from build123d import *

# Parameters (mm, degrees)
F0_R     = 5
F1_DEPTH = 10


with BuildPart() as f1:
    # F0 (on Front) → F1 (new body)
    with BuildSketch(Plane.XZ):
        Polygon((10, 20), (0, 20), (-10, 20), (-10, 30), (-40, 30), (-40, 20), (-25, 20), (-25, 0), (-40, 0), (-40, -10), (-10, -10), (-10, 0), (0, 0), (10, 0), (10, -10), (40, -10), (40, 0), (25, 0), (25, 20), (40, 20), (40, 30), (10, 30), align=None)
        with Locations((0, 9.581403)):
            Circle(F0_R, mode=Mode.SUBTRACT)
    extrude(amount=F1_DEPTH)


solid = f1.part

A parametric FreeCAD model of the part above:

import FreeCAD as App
import Part
import Sketcher

V = App.Vector

doc = App.newDocument("Part")
body = doc.addObject("PartDesign::Body", "Body")

# Sketch on XZ plane
sketch1 = doc.addObject("Sketcher::SketchObject", "Sketch")
body.addObject(sketch1)
sketch1.AttachmentSupport = (doc.XZ_Plane, [""])
sketch1.MapMode = "FlatFace"
sketch1.addGeometry([
    Part.LineSegment(V(10, 20, 0), V(-10, 20, 0)),  # 0
    Part.LineSegment(V(-10, 20, 0), V(-10, 30, 0)),  # 1
    Part.LineSegment(V(-10, 30, 0), V(-40, 30, 0)),  # 2
    Part.LineSegment(V(-40, 30, 0), V(-40, 20, 0)),  # 3
    Part.LineSegment(V(-40, 20, 0), V(-25, 20, 0)),  # 4
    Part.LineSegment(V(-25, 20, 0), V(-25, 0, 0)),  # 5
    Part.LineSegment(V(-25, 0, 0), V(-40, 0, 0)),  # 6
    Part.LineSegment(V(-40, 0, 0), V(-40, -10, 0)),  # 7
    Part.LineSegment(V(-40, -10, 0), V(-10, -10, 0)),  # 8
    Part.LineSegment(V(-10, -10, 0), V(-10, 0, 0)),  # 9
    Part.LineSegment(V(-10, 0, 0), V(10, 0, 0)),  # 10
    Part.LineSegment(V(10, 0, 0), V(10, -10, 0)),  # 11
    Part.LineSegment(V(10, -10, 0), V(40, -10, 0)),  # 12
    Part.LineSegment(V(40, -10, 0), V(40, 0, 0)),  # 13
    Part.LineSegment(V(40, 0, 0), V(25, 0, 0)),  # 14
    Part.LineSegment(V(25, 0, 0), V(25, 20, 0)),  # 15
    Part.LineSegment(V(25, 20, 0), V(40, 20, 0)),  # 16
    Part.LineSegment(V(40, 20, 0), V(40, 30, 0)),  # 17
    Part.LineSegment(V(40, 30, 0), V(10, 30, 0)),  # 18
    Part.LineSegment(V(10, 30, 0), V(10, 20, 0)),  # 19
    Part.Circle(V(0, 10, 0), V(0, 0, 1), 5),  # 20
], False)
sketch1.addConstraint([
    Sketcher.Constraint("Coincident", 0, 2, 1, 1),
    Sketcher.Constraint("Coincident", 1, 2, 2, 1),
    Sketcher.Constraint("Coincident", 2, 2, 3, 1),
    Sketcher.Constraint("Coincident", 3, 2, 4, 1),
    Sketcher.Constraint("Coincident", 4, 2, 5, 1),
    Sketcher.Constraint("Coincident", 5, 2, 6, 1),
    Sketcher.Constraint("Coincident", 6, 2, 7, 1),
    Sketcher.Constraint("Coincident", 7, 2, 8, 1),
    Sketcher.Constraint("Coincident", 8, 2, 9, 1),
    Sketcher.Constraint("Coincident", 9, 2, 10, 1),
    Sketcher.Constraint("Coincident", 10, 2, 11, 1),
    Sketcher.Constraint("Coincident", 11, 2, 12, 1),
    Sketcher.Constraint("Coincident", 12, 2, 13, 1),
    Sketcher.Constraint("Coincident", 13, 2, 14, 1),
    Sketcher.Constraint("Coincident", 14, 2, 15, 1),
    Sketcher.Constraint("Coincident", 15, 2, 16, 1),
    Sketcher.Constraint("Coincident", 16, 2, 17, 1),
    Sketcher.Constraint("Coincident", 17, 2, 18, 1),
    Sketcher.Constraint("Coincident", 18, 2, 19, 1),
    Sketcher.Constraint("Coincident", 19, 2, 0, 1),
    Sketcher.Constraint("Horizontal", 0),
    Sketcher.Constraint("Vertical", 1),
    Sketcher.Constraint("Horizontal", 2),
    Sketcher.Constraint("Vertical", 3),
    Sketcher.Constraint("Horizontal", 4),
    Sketcher.Constraint("Vertical", 5),
    Sketcher.Constraint("Horizontal", 6),
    Sketcher.Constraint("Vertical", 7),
    Sketcher.Constraint("Horizontal", 8),
    Sketcher.Constraint("Vertical", 9),
    Sketcher.Constraint("Horizontal", 10),
    Sketcher.Constraint("Vertical", 11),
    Sketcher.Constraint("Horizontal", 12),
    Sketcher.Constraint("Vertical", 13),
    Sketcher.Constraint("Horizontal", 14),
    Sketcher.Constraint("Vertical", 15),
    Sketcher.Constraint("Horizontal", 16),
    Sketcher.Constraint("Vertical", 17),
    Sketcher.Constraint("Horizontal", 18),
    Sketcher.Constraint("Vertical", 19),
    Sketcher.Constraint("Symmetric", 9, 2, 10, 2, -1, 1),
    Sketcher.Constraint("Symmetric", 6, 2, 13, 2, -1, 1),
    Sketcher.Constraint("Symmetric", 5, 2, 14, 2, -2),
    Sketcher.Constraint("Symmetric", 3, 2, 16, 2, -2),
    Sketcher.Constraint("Symmetric", 1, 2, 18, 2, -2),
    Sketcher.Constraint("PointOnObject", 20, 3, -2),
    Sketcher.Constraint("Horizontal", 0, 2, 3, 2),
    Sketcher.Constraint("Horizontal", 8, 2, 11, 2),
    Sketcher.Constraint("Vertical", 3, 2, 6, 2),
    Sketcher.Constraint("Vertical", 1, 2, 8, 2),
    Sketcher.Constraint("Equal", 10, 5),
    Sketcher.Constraint("Equal", 3, 7),
    Sketcher.Constraint("Diameter", 20, 10.0),
    Sketcher.Constraint("DistanceX", 0, 2, 0, 1, 20.0),
    Sketcher.Constraint("DistanceX", 2, 2, 2, 1, 30.0),
    Sketcher.Constraint("DistanceX", 4, 1, 4, 2, 15.0),
    Sketcher.Constraint("DistanceY", 1, 1, 1, 2, 10.0),
    Sketcher.Constraint("DistanceY", -1, 1, 20, 3, 9.581403),
])
pad1 = doc.addObject("PartDesign::Pad", "Pad")
body.addObject(pad1)
pad1.Profile = sketch1
pad1.Length = 10

doc.recompute()
